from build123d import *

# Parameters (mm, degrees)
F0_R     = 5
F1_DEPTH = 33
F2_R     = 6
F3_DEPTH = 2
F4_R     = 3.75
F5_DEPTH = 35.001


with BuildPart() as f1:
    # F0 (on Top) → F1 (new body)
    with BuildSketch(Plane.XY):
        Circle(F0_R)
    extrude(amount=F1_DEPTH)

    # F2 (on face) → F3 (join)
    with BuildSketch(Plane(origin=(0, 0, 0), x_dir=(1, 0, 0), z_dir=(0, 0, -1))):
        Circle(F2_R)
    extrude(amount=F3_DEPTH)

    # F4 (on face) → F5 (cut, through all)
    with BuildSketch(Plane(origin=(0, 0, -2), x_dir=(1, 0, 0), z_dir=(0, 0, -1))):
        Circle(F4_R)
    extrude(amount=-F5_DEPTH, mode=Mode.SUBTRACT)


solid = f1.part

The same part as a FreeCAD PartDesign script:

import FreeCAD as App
import Part
import Sketcher

V = App.Vector

doc = App.newDocument("Part")
body = doc.addObject("PartDesign::Body", "Body")

sketch1 = body.newObject("Sketcher::SketchObject", "Sketch")
sketch1.AttachmentSupport = (doc.getObject("XY_Plane"), [""])
sketch1.MapMode = "FlatFace"
sketch1.addGeometry(Part.Circle(V(0, 0, 0), V(0, 0, 1), 5), False)
sketch1.addConstraint(Sketcher.Constraint("Coincident", 0, 3, -1, 1))
sketch1.addConstraint(Sketcher.Constraint("Diameter", 0, 10.0))
pad1 = body.newObject("PartDesign::Pad", "Pad")
pad1.Profile = sketch1
pad1.Length = 33

sketch2 = body.newObject("Sketcher::SketchObject", "Sketch001")
sketch2.AttachmentSupport = (doc.getObject("XY_Plane"), [""])
sketch2.MapMode = "FlatFace"
sketch2.addGeometry(Part.Circle(V(0, 0, 0), V(0, 0, 1), 6), False)
sketch2.addConstraint(Sketcher.Constraint("Coincident", 0, 3, -1, 1))
sketch2.addConstraint(Sketcher.Constraint("Diameter", 0, 12.0))
pad2 = body.newObject("PartDesign::Pad", "Pad001")
pad2.Profile = sketch2
pad2.Length = 2
pad2.Reversed = True

sketch3 = body.newObject("Sketcher::SketchObject", "Sketch002")
sketch3.AttachmentSupport = (doc.getObject("XY_Plane"), [""])
sketch3.MapMode = "FlatFace"
sketch3.AttachmentOffset = App.Placement(V(0, 0, -2), App.Rotation())
sketch3.addGeometry(Part.Circle(V(0, 0, 0), V(0, 0, 1), 3.8), False)
sketch3.addConstraint(Sketcher.Constraint("Coincident", 0, 3, -1, 1))
sketch3.addConstraint(Sketcher.Constraint("Diameter", 0, 7.5))
pocket1 = body.newObject("PartDesign::Pocket", "Pocket")
pocket1.Profile = sketch3
pocket1.Type = "ThroughAll"
pocket1.Reversed = True

doc.recompute()
